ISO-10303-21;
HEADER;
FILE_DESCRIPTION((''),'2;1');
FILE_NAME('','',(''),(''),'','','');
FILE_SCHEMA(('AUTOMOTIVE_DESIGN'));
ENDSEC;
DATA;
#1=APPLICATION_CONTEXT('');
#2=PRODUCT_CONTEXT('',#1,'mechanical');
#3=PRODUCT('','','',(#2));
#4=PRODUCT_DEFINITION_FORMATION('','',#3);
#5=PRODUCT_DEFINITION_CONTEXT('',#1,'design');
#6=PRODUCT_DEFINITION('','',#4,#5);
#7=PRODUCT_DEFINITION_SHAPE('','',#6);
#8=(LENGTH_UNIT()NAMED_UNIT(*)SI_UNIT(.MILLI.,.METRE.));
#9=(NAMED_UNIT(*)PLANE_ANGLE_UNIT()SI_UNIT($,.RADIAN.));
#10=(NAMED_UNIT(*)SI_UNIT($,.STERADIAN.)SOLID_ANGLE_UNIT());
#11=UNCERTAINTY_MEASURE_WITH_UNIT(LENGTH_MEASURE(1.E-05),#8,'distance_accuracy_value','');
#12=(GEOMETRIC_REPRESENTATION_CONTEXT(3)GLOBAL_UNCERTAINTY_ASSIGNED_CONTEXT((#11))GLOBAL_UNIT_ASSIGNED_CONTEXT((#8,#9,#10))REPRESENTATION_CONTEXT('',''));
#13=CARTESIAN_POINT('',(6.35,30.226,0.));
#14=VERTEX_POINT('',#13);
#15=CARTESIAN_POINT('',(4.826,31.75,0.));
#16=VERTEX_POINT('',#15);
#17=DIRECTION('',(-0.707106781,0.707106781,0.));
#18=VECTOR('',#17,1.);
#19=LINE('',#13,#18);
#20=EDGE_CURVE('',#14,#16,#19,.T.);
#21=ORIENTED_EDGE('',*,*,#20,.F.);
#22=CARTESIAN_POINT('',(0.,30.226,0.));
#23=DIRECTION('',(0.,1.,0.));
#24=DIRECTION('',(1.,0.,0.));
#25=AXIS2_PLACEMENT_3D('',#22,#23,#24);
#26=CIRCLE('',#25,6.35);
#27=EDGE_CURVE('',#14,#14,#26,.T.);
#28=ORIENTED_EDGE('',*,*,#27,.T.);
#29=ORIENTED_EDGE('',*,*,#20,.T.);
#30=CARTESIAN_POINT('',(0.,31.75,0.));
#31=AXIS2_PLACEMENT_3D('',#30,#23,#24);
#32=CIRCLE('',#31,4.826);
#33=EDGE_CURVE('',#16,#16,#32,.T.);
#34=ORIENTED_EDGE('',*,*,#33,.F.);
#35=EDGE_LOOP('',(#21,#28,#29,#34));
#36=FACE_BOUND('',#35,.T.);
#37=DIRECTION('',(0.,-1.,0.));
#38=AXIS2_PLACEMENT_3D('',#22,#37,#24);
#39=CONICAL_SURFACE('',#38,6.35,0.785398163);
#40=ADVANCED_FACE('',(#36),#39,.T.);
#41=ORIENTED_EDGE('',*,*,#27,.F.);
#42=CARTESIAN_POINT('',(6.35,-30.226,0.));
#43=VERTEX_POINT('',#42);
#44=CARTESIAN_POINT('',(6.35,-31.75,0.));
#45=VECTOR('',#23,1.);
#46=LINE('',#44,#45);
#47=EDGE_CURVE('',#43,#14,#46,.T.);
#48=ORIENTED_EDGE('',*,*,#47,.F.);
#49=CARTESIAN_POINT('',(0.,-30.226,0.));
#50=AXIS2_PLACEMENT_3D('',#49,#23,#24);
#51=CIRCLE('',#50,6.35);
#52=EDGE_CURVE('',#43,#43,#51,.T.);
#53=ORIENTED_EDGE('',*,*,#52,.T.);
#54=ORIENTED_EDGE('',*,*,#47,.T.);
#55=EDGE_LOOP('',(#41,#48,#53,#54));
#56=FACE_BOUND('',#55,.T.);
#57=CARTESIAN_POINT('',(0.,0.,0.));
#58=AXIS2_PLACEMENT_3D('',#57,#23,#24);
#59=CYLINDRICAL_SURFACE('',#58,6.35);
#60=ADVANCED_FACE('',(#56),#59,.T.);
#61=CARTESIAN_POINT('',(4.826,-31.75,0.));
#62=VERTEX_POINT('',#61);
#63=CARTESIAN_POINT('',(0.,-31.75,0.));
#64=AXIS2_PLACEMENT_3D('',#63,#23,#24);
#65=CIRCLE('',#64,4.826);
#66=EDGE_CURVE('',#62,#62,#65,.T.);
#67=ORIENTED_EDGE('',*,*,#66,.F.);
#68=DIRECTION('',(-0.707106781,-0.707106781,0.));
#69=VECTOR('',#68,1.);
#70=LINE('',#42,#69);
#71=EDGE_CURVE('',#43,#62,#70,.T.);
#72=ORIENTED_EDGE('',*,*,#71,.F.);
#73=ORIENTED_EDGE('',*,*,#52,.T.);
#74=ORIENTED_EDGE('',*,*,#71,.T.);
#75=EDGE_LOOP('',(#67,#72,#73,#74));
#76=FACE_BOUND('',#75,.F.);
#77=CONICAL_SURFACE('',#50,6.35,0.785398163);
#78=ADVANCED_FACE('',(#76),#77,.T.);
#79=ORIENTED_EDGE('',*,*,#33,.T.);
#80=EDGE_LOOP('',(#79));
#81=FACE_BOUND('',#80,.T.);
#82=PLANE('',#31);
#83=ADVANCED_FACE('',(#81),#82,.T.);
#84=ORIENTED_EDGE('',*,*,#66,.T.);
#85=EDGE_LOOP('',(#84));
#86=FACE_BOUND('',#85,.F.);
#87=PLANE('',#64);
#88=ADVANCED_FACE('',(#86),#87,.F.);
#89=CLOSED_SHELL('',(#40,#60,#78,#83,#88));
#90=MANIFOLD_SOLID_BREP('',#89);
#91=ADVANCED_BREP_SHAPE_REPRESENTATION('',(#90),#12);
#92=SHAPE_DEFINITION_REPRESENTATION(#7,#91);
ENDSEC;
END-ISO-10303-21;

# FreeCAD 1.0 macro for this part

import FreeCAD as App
import Part
import Sketcher

V = App.Vector
Q = App.Units.Quantity


def edges_at(feature, points):
    """Names of the edges that pass closest to the given points."""
    edges = feature.Shape.Edges
    near = lambda p: min(range(len(edges)), key=lambda i: edges[i].distToShape(Part.Vertex(*p))[0])
    return sorted({f"Edge{near(p) + 1}" for p in points})

doc = App.newDocument("Part")
body = doc.addObject("PartDesign::Body", "Body")

sketch1 = body.newObject("Sketcher::SketchObject", "Sketch")
sketch1.AttachmentSupport = (doc.getObject("XZ_Plane"), [""])
sketch1.MapMode = "FlatFace"
sketch1.addGeometry(Part.Circle(V(0, 0, 0), V(0, 0, 1), 6), False)
sketch1.addConstraint([
    Sketcher.Constraint("Coincident", 0, 3, -1, 1),
    Sketcher.Constraint("Diameter", 0, Q("0.5 in")),
])
pad1 = body.newObject("PartDesign::Pad", "Pad")
pad1.Profile = sketch1
pad1.Length = Q("2.5 in")
pad1.Midplane = True
doc.recompute()

chamfer = body.newObject("PartDesign::Chamfer", "Chamfer")
chamfer.Base = (pad1, edges_at(pad1, [(-6.35, -31.75, 0), (-6.35, 31.75, 0)]))
chamfer.Size = Q("0.06 in")

doc.recompute()
